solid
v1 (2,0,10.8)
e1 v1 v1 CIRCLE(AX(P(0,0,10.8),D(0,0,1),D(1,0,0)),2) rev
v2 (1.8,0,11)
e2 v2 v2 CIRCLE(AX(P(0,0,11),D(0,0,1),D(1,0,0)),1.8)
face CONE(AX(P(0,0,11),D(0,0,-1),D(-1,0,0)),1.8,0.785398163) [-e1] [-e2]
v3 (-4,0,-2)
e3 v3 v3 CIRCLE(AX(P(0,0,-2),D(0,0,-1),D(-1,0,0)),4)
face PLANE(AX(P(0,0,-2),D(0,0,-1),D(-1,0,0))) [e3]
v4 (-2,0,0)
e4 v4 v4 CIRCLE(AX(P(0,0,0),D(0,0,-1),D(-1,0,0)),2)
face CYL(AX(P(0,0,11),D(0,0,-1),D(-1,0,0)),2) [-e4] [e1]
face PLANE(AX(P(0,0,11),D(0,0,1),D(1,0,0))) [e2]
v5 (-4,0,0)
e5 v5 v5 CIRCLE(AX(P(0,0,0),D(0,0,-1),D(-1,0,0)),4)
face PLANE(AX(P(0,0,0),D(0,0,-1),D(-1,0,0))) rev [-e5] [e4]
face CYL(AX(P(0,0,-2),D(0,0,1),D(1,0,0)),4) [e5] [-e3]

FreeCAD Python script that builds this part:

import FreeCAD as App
import Part
import Sketcher

V = App.Vector
Q = App.Units.Quantity


def edges_at(feature, points):
    """Names of the edges that pass closest to the given points."""
    edges = feature.Shape.Edges
    near = lambda p: min(range(len(edges)), key=lambda i: edges[i].distToShape(Part.Vertex(*p))[0])
    return sorted({f"Edge{near(p) + 1}" for p in points})

doc = App.newDocument("Part")
body = doc.addObject("PartDesign::Body", "Body")

# Sketch on XY plane
sketch1 = body.newObject("Sketcher::SketchObject", "Sketch")
sketch1.AttachmentSupport = (doc.getObject("XY_Plane"), [""])
sketch1.MapMode = "FlatFace"
sketch1.addGeometry(Part.Circle(V(0, 0, 0), V(0, 0, 1), 2), False)
sketch1.addConstraint(Sketcher.Constraint("Coincident", 0, 3, -1, 1))
sketch1.addConstraint(Sketcher.Constraint("Diameter", 0, Q("4 mm")))
pad1 = body.newObject("PartDesign::Pad", "Pad")
pad1.Profile = sketch1
pad1.Length = 11

# Sketch on XY plane
sketch2 = body.newObject("Sketcher::SketchObject", "Sketch001")
sketch2.AttachmentSupport = (doc.getObject("XY_Plane"), [""])
sketch2.MapMode = "FlatFace"
sketch2.addGeometry(Part.Circle(V(0, 0, 0), V(0, 0, 1), 4), False)
sketch2.addConstraint(Sketcher.Constraint("Coincident", 0, 3, -1, 1))
sketch2.addConstraint(Sketcher.Constraint("Diameter", 0, Q("8 mm")))
pad2 = body.newObject("PartDesign::Pad", "Pad001")
pad2.Profile = sketch2
pad2.Length = 2
pad2.Reversed = True
doc.recompute()

chamfer = body.newObject("PartDesign::Chamfer", "Chamfer")
chamfer.Base = (pad2, edges_at(pad2, [(-2, 0, 11)]))
chamfer.Size = 0.2

doc.recompute()
